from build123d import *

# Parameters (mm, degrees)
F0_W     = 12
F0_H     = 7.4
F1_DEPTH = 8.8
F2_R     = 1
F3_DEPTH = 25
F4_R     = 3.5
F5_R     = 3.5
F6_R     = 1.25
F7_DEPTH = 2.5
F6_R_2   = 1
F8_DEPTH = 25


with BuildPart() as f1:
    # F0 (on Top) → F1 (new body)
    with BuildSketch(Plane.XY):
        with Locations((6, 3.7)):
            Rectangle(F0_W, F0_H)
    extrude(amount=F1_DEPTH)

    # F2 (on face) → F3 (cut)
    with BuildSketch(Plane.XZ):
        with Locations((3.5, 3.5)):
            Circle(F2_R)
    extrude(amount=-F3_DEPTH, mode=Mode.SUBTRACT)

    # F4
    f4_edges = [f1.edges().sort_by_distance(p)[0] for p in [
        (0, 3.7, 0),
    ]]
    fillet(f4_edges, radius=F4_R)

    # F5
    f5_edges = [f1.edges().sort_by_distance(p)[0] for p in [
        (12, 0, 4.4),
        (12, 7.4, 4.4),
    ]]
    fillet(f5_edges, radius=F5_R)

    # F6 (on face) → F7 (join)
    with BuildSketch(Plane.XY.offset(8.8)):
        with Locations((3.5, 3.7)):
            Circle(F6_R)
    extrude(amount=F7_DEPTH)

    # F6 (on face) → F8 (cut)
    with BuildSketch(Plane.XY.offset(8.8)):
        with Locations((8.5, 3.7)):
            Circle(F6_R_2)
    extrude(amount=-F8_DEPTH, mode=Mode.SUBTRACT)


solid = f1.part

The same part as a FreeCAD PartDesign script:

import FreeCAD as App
import Part
import Sketcher


def edges_at(feature, points):
    """Names of the edges that pass closest to the given points."""
    edges = feature.Shape.Edges
    near = lambda p: min(range(len(edges)), key=lambda i: edges[i].distToShape(Part.Vertex(*p))[0])
    return sorted({f"Edge{near(p) + 1}" for p in points})


def add_polygon(sketch, points):
    """Adds a closed chain of lines whose ends are joined by coincident constraints."""
    first, n = sketch.GeometryCount, len(points)
    for a, b in zip(points, points[1:] + points[:1]):
        sketch.addGeometry(Part.LineSegment(App.Vector(*a, 0), App.Vector(*b, 0)), False)
    for i in range(n):
        sketch.addConstraint(Sketcher.Constraint("Coincident", first + i, 2, first + (i + 1) % n, 1))

doc = App.newDocument("Part")
body = doc.addObject("PartDesign::Body", "Body")

sketch1 = doc.addObject("Sketcher::SketchObject", "Sketch")
body.addObject(sketch1)
sketch1.AttachmentSupport = (doc.XY_Plane, [""])
sketch1.MapMode = "FlatFace"
add_polygon(sketch1, [(0, 7.4), (0, 0), (12, 0), (12, 7.4)])
sketch1.addConstraint([
    Sketcher.Constraint("Vertical", 0),
    Sketcher.Constraint("Horizontal", 1),
    Sketcher.Constraint("Vertical", 2),
    Sketcher.Constraint("Horizontal", 3),
    Sketcher.Constraint("Coincident", 0, 2, -1, 1),
    Sketcher.Constraint("DistanceX", 1, 1, 1, 2, 12.0),
    Sketcher.Constraint("DistanceY", 0, 2, 0, 1, 7.4),
])
pad1 = doc.addObject("PartDesign::Pad", "Pad")
body.addObject(pad1)
pad1.Profile = sketch1
pad1.Length = 8.8

sketch2 = doc.addObject("Sketcher::SketchObject", "Sketch001")
body.addObject(sketch2)
sketch2.AttachmentSupport = (doc.XZ_Plane, [""])
sketch2.MapMode = "FlatFace"
sketch2.addGeometry(Part.Circle(App.Vector(3.5, 3.5, 0), App.Vector(0, 0, 1), 1), False)
sketch2.addConstraint([
    Sketcher.Constraint("Diameter", 0, 2.0),
    Sketcher.Constraint("DistanceX", -1, 1, 0, 3, 3.5),
    Sketcher.Constraint("DistanceY", -1, 1, 0, 3, 3.5),
])
pocket1 = doc.addObject("PartDesign::Pocket", "Pocket")
body.addObject(pocket1)
pocket1.Profile = sketch2
pocket1.Length = 25
doc.recompute()

fillet = doc.addObject("PartDesign::Fillet", "Fillet")
body.addObject(fillet)
fillet.Base = (pocket1, edges_at(pocket1, [(0, 3.7, 0)]))
fillet.Radius = 3.5
doc.recompute()

fillet2 = doc.addObject("PartDesign::Fillet", "Fillet001")
body.addObject(fillet2)
fillet2.Base = (fillet, edges_at(fillet, [(12, 0, 4.4), (12, 7.4, 4.4)]))
fillet2.Radius = 3.5

sketch3 = doc.addObject("Sketcher::SketchObject", "Sketch002")
body.addObject(sketch3)
sketch3.AttachmentSupport = (doc.XY_Plane, [""])
sketch3.MapMode = "FlatFace"
sketch3.AttachmentOffset = App.Placement(App.Vector(0, 0, 8.8), App.Rotation())
sketch3.addGeometry(Part.Circle(App.Vector(3.5, 3.7, 0), App.Vector(0, 0, 1), 1.25), False)
sketch3.addConstraint([
    Sketcher.Constraint("Diameter", 0, 2.5),
    Sketcher.Constraint("DistanceX", -1, 1, 0, 3, 3.5),
    Sketcher.Constraint("DistanceY", -1, 1, 0, 3, 3.7),
])
pad2 = doc.addObject("PartDesign::Pad", "Pad001")
body.addObject(pad2)
pad2.Profile = sketch3
pad2.Length = 2.5

sketch4 = doc.addObject("Sketcher::SketchObject", "Sketch003")
body.addObject(sketch4)
sketch4.AttachmentSupport = (doc.XY_Plane, [""])
sketch4.MapMode = "FlatFace"
sketch4.AttachmentOffset = App.Placement(App.Vector(0, 0, 8.8), App.Rotation())
sketch4.addGeometry(Part.Circle(App.Vector(8.5, 3.7, 0), App.Vector(0, 0, 1), 1), False)
sketch4.addConstraint([
    Sketcher.Constraint("Diameter", 0, 2.0),
    Sketcher.Constraint("DistanceX", -1, 1, 0, 3, 8.5),
    Sketcher.Constraint("DistanceY", -1, 1, 0, 3, 3.7),
])
pocket2 = doc.addObject("PartDesign::Pocket", "Pocket001")
body.addObject(pocket2)
pocket2.Profile = sketch4
pocket2.Length = 25

doc.recompute()
